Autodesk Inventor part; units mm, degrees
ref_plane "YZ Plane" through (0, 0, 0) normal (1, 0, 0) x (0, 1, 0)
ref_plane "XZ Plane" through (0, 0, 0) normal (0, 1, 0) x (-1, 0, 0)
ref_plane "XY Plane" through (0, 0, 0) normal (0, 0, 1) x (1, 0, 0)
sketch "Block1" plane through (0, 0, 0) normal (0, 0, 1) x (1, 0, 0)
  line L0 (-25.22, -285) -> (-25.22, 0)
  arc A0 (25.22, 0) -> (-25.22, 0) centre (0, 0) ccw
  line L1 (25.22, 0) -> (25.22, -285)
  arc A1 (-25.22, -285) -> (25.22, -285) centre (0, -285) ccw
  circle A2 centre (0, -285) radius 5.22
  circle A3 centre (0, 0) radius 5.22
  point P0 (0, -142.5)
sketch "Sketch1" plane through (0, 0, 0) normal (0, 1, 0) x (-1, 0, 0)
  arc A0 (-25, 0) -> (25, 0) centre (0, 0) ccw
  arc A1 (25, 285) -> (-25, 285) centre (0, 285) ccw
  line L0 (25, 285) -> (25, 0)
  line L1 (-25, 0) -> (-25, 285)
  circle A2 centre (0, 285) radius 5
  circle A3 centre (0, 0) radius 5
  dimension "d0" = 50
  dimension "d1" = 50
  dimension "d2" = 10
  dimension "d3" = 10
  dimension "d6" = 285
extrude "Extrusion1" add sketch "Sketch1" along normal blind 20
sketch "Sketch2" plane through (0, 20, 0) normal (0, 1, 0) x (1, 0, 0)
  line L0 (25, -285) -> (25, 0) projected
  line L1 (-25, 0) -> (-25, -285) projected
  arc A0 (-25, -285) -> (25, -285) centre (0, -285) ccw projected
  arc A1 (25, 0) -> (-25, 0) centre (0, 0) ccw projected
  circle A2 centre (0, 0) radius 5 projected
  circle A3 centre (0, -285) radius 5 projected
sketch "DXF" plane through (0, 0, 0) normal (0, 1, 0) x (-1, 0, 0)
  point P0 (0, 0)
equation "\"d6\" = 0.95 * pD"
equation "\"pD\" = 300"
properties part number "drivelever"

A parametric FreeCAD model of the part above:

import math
import FreeCAD as App
import Part
import Sketcher
from FreeCAD import Vector

doc = App.newDocument("Part")
params = doc.addObject("Spreadsheet::Sheet", "Params")
for row, (alias, value) in enumerate([
    ("sketch1_diameter", "10 mm"),
    ("sketch1_radius", "25 mm"),
    ("sketch1_height", "285 mm"),
    ("pad1_length", "20 mm"),
], start=1):
    params.set(f"A{row}", alias)
    params.set(f"B{row}", "=" + value)
    params.setAlias(f"B{row}", alias)

body = doc.addObject("PartDesign::Body", "Body")

# Sketch on XZ plane
sketch1 = body.newObject("Sketcher::SketchObject", "Sketch")
sketch1.AttachmentSupport = (doc.getObject("XZ_Plane"), [""])
sketch1.MapMode = "FlatFace"
sketch1.addGeometry([
    Part.LineSegment(Vector(25, 285, 0), Vector(25, 0, 0)),  # 0
    Part.ArcOfCircle(Part.Circle(Vector(0, 0, 0), Vector(0, 0, 1), 25), math.radians(180), math.radians(360)),  # 1
    Part.LineSegment(Vector(-25, 0, 0), Vector(-25, 285, 0)),  # 2
    Part.ArcOfCircle(Part.Circle(Vector(0, 285, 0), Vector(0, 0, 1), 25), math.radians(0), math.radians(180)),  # 3
    Part.Circle(Vector(0, 0, 0), Vector(0, 0, 1), 5),  # 4
    Part.Circle(Vector(0, 285, 0), Vector(0, 0, 1), 5),  # 5
], False)
sketch1.addConstraint([
    Sketcher.Constraint("Tangent", 0, 2, 1, 2),
    Sketcher.Constraint("Tangent", 1, 1, 2, 1),
    Sketcher.Constraint("Tangent", 2, 2, 3, 2),
    Sketcher.Constraint("Tangent", 3, 1, 0, 1),
    Sketcher.Constraint("Vertical", 0),
    Sketcher.Constraint("Vertical", 2),
    Sketcher.Constraint("Coincident", 1, 3, -1, 1),
    Sketcher.Constraint("Coincident", 4, 3, -1, 1),
    Sketcher.Constraint("Coincident", 5, 3, 3, 3),
    Sketcher.Constraint("Equal", 4, 5),
    Sketcher.Constraint("Diameter", 4, 10.0),
    Sketcher.Constraint("Radius", 1, 25.0),
    Sketcher.Constraint("DistanceY", 0, 2, 0, 1, 285.0),
])
sketch1.setExpression("Constraints[10]", "Params.sketch1_diameter")
sketch1.setExpression("Constraints[11]", "Params.sketch1_radius")
sketch1.setExpression("Constraints[12]", "Params.sketch1_height")
pad1 = body.newObject("PartDesign::Pad", "Pad")
pad1.Profile = sketch1
pad1.setExpression("Length", "Params.pad1_length")
pad1.Reversed = True

doc.recompute()
